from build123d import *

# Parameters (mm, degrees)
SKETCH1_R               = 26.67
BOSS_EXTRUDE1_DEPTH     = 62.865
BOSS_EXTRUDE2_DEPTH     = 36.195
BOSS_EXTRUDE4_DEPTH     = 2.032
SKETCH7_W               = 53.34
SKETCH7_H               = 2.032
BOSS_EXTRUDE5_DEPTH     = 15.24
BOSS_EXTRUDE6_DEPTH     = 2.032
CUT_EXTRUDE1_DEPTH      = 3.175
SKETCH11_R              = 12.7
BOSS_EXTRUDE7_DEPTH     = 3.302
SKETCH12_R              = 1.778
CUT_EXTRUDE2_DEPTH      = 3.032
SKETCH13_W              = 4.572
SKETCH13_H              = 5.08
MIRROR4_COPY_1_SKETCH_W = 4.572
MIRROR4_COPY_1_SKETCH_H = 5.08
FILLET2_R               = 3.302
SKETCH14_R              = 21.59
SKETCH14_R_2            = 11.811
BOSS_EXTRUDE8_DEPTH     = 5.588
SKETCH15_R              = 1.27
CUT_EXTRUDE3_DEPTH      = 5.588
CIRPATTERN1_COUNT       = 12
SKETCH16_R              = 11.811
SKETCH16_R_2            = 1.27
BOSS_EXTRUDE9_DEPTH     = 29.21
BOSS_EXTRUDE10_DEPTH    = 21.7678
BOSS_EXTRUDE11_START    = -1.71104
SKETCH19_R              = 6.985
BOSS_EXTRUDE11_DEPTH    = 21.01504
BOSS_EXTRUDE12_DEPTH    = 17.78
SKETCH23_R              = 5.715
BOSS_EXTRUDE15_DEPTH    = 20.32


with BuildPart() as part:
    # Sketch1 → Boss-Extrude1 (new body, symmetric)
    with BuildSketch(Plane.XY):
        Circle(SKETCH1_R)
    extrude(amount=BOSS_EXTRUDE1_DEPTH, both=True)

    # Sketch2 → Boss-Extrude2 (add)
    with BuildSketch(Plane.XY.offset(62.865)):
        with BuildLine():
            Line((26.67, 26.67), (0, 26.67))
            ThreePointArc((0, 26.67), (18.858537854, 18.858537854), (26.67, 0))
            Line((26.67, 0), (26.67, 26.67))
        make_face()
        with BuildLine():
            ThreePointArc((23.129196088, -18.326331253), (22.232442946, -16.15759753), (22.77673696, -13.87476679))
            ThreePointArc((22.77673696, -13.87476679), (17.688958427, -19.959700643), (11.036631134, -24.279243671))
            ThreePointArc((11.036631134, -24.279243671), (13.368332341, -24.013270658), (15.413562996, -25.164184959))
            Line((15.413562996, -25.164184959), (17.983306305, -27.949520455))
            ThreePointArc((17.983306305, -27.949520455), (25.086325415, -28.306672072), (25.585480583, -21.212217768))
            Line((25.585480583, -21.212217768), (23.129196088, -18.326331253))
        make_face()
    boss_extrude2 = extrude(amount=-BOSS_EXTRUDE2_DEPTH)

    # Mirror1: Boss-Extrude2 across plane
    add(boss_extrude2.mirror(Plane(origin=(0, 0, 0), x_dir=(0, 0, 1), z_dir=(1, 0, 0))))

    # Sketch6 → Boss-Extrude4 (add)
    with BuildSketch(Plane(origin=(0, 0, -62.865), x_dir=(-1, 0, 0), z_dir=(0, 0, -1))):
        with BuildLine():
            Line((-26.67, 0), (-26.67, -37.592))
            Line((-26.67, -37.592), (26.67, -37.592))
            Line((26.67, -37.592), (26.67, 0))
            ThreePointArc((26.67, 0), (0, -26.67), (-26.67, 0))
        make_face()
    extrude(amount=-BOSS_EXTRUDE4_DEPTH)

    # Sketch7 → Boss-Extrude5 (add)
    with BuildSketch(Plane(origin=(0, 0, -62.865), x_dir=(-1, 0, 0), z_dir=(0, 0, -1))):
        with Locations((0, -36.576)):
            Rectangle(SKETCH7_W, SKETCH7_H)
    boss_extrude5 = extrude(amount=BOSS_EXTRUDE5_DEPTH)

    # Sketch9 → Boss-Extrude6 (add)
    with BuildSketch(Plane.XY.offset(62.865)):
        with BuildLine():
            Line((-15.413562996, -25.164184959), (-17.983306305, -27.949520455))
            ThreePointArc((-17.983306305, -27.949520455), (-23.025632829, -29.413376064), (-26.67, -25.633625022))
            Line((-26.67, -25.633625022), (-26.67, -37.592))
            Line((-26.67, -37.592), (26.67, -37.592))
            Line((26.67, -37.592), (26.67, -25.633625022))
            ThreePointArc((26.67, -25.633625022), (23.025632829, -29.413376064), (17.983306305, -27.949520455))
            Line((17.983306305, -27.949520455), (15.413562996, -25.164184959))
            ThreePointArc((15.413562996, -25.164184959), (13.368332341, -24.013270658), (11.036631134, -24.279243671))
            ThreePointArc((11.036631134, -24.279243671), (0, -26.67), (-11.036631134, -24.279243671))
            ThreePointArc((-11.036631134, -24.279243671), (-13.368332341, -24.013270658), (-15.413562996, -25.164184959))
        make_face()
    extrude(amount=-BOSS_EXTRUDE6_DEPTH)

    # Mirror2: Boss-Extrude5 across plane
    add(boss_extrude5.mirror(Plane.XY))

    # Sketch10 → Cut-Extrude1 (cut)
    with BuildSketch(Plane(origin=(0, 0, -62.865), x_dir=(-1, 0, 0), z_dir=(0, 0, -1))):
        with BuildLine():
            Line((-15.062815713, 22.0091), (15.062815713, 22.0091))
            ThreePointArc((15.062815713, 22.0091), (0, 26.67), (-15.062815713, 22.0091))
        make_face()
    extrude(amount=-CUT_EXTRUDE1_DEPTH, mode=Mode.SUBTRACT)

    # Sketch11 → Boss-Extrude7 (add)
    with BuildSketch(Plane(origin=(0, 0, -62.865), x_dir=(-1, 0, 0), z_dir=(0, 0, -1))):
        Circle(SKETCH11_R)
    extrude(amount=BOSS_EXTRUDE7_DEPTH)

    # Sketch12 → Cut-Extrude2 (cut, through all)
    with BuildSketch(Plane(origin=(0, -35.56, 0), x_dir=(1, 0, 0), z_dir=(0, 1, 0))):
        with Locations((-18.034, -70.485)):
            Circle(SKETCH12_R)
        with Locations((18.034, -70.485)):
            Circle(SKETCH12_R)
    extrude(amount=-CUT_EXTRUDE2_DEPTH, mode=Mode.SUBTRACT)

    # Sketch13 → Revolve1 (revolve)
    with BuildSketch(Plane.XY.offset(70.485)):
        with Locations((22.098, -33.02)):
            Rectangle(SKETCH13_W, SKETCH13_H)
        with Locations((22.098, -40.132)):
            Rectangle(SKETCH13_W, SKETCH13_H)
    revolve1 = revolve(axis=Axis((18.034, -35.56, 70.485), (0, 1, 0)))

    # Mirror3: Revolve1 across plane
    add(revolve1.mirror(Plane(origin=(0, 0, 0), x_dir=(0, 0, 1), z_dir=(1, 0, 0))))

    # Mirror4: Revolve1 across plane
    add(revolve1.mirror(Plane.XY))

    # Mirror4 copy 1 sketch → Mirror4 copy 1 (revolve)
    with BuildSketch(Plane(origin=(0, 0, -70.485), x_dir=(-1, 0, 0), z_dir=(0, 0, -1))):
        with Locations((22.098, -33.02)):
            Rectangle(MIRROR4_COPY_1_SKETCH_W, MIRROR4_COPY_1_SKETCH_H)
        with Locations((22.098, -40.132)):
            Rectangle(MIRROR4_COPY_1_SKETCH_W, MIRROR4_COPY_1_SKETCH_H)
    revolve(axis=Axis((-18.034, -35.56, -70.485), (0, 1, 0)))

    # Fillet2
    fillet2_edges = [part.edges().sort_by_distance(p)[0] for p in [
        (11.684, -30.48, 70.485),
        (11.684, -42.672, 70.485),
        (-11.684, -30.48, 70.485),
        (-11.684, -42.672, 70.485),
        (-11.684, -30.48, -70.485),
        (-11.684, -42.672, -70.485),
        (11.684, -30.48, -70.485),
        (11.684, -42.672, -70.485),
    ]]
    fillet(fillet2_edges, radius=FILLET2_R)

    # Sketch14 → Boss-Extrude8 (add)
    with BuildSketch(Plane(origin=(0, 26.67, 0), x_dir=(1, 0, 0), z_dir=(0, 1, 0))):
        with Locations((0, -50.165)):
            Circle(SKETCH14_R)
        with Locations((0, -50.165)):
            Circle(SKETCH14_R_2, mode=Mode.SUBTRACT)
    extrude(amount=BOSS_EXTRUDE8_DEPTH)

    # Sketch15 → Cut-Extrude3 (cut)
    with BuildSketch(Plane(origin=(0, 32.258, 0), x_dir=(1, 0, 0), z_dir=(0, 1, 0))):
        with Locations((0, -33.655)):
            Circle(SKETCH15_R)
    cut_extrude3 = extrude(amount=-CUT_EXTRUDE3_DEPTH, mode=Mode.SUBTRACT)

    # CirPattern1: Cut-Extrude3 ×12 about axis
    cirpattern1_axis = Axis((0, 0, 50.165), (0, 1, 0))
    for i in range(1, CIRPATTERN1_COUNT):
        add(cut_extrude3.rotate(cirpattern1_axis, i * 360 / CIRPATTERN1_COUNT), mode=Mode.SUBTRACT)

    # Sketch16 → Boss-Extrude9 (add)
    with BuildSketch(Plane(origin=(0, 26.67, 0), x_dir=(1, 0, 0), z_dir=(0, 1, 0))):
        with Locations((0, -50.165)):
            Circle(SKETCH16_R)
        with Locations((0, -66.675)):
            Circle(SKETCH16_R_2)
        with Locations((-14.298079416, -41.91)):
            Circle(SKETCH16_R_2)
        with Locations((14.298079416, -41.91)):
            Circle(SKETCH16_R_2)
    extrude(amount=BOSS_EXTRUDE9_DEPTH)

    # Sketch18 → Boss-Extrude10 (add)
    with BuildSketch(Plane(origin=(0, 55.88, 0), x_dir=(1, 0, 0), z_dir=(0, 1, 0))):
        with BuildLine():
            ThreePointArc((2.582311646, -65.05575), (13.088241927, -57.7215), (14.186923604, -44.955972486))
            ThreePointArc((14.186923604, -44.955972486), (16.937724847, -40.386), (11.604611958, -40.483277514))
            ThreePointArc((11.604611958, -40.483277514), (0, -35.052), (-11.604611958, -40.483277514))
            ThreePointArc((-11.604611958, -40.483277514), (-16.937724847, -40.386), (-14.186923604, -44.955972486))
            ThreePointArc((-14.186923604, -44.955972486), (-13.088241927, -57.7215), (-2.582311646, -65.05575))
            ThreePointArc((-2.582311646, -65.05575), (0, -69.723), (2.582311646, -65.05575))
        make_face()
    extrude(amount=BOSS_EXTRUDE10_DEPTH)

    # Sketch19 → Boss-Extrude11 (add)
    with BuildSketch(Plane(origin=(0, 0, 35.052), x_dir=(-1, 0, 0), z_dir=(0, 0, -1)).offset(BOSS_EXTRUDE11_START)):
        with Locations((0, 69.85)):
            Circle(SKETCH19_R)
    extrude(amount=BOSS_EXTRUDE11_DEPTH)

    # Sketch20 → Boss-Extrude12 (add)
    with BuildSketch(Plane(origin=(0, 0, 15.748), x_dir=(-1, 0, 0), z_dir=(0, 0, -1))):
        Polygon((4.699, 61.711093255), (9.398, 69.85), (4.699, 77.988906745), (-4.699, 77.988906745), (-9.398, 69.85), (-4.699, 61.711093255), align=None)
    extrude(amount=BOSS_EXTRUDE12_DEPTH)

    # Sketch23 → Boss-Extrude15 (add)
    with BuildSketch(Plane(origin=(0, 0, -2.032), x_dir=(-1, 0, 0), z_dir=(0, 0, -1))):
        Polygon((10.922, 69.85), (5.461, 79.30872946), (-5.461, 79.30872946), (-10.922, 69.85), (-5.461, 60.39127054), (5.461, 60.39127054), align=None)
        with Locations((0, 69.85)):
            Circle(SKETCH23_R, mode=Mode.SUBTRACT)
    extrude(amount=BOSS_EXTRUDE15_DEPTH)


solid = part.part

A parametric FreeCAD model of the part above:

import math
import FreeCAD as App
import Part
import Sketcher
Q = App.Units.Quantity


def edges_at(feature, points):
    """Names of the edges that pass closest to the given points."""
    edges = feature.Shape.Edges
    near = lambda p: min(range(len(edges)), key=lambda i: edges[i].distToShape(Part.Vertex(*p))[0])
    return sorted({f"Edge{near(p) + 1}" for p in points})


def add_polygon(sketch, points):
    """Adds a closed chain of lines whose ends are joined by coincident constraints."""
    first, n = sketch.GeometryCount, len(points)
    for a, b in zip(points, points[1:] + points[:1]):
        sketch.addGeometry(Part.LineSegment(App.Vector(*a, 0), App.Vector(*b, 0)), False)
    for i in range(n):
        sketch.addConstraint(Sketcher.Constraint("Coincident", first + i, 2, first + (i + 1) % n, 1))

doc = App.newDocument("Part")
params = doc.addObject("Spreadsheet::Sheet", "Params")
for row, (alias, value) in enumerate([
    ("sketch1_diameter", "2.1 in"),
    ("pad1_length", "4.95 in"),
    ("sketch2_radius", "0.2 in"),
    ("sketch2_radius2", "1.05 in"),
    ("sketch2_radius3", "0.15 in"),
    ("pad2_length", "1.425 in"),
    ("sketch3_radius", "1.05 in"),
    ("sketch3_height", "1.48 in"),
    ("pad3_length", "0.08 in"),
    ("sketch4_width", "2.1 in"),
    ("sketch4_height", "0.08 in"),
    ("pad4_length", "0.6 in"),
    ("sketch5_radius", "0.2 in"),
    ("sketch5_radius2", "0.15 in"),
    ("sketch5_radius3", "1.05 in"),
    ("sketch5_width", "2.1 in"),
    ("pad5_length", "0.08 in"),
    ("sketch6_radius", "1.05 in"),
    ("pocket1_length", "0.125 in"),
    ("sketch7_diameter", "1 in"),
    ("pad6_length", "0.13 in"),
    ("sketch8_diameter", "0.14 in"),
    ("sketch9_height", "0.2 in"),
    ("sketch9_width", "0.18 in"),
    ("sketch9_height2", "0.48 in"),
    ("revolution_angle", "360 deg"),
    ("sketch10_height", "0.2 in"),
    ("sketch10_width", "0.18 in"),
    ("sketch10_height2", "0.48 in"),
    ("revolution2_angle", "360 deg"),
    ("fillet_radius", "0.13 in"),
    ("sketch11_diameter", "1.7 in"),
    ("sketch11_diameter2", "0.93 in"),
    ("pad7_length", "0.22 in"),
    ("sketch12_diameter", "0.1 in"),
    ("pocket3_length", "0.22 in"),
    ("sketch13_diameter", "0.1 in"),
    ("sketch13_diameter2", "0.93 in"),
    ("pad8_length", "1.15 in"),
    ("sketch14_radius", "0.12 in"),
    ("sketch14_radius2", "0.595 in"),
    ("pad9_length", "0.857 in"),
    ("sketch15_diameter", "0.55 in"),
    ("pad10_length", "21.01504 mm"),
    ("sketch16_width", "0.37 in"),
    ("sketch16_length", "0.37 in"),
    ("pad11_length", "0.7 in"),
    ("sketch17_diameter", "0.45 in"),
    ("sketch17_width", "0.43 in"),
    ("sketch17_length", "0.43 in"),
    ("pad12_length", "0.8 in"),
], start=1):
    params.set(f"A{row}", alias)
    params.set(f"B{row}", "=" + value)
    params.setAlias(f"B{row}", alias)

body = doc.addObject("PartDesign::Body", "Body")

# Sketch on XY plane
sketch1 = body.newObject("Sketcher::SketchObject", "Sketch")
sketch1.AttachmentSupport = (doc.getObject("XY_Plane"), [""])
sketch1.MapMode = "FlatFace"
sketch1.addGeometry(Part.Circle(App.Vector(0, 0, 0), App.Vector(0, 0, 1), 27), False)
sketch1.addConstraint([
    Sketcher.Constraint("Coincident", 0, 3, -1, 1),
    Sketcher.Constraint("Diameter", 0, Q("2.1 in")),
])
sketch1.setExpression("Constraints[1]", "Params.sketch1_diameter")
pad1 = body.newObject("PartDesign::Pad", "Pad")
pad1.Profile = sketch1
pad1.setExpression("Length", "Params.pad1_length")
pad1.Midplane = True

# Sketch on XY plane
sketch2 = body.newObject("Sketcher::SketchObject", "Sketch001")
sketch2.AttachmentSupport = (doc.getObject("XY_Plane"), [""])
sketch2.MapMode = "FlatFace"
sketch2.AttachmentOffset = App.Placement(App.Vector(0, 0, 2.475 * 25.4), App.Rotation())
sketch2.addGeometry([
    Part.LineSegment(App.Vector(26.7, 26.7, 0), App.Vector(0, 26.7, 0)),  # 0
    Part.ArcOfCircle(Part.Circle(App.Vector(0, 0, 0), App.Vector(0, 0, 1), 26.7), math.radians(0), math.radians(90)),  # 1
    Part.LineSegment(App.Vector(26.7, 0, 0), App.Vector(26.7, 26.7, 0)),  # 2
    Part.ArcOfCircle(Part.Circle(App.Vector(26, -15.9, 0), App.Vector(0, 0, 1), 3.8), math.radians(149), math.radians(220)),  # 3
    Part.ArcOfCircle(Part.Circle(App.Vector(0, 0, 0), App.Vector(0, 0, 1), 26.7), math.radians(-66), math.radians(-31)),  # 4
    Part.ArcOfCircle(Part.Circle(App.Vector(12.6, -27.7, 0), App.Vector(0, 0, 1), 3.8), math.radians(43), math.radians(114)),  # 5
    Part.LineSegment(App.Vector(15.4, -25.2, 0), App.Vector(18, -27.9, 0)),  # 6
    Part.ArcOfCircle(Part.Circle(App.Vector(21.7, -24.5, 0), App.Vector(0, 0, 1), 5.1), math.radians(-137), math.radians(40)),  # 7
    Part.LineSegment(App.Vector(25.6, -21.2, 0), App.Vector(23.1, -18.3, 0)),  # 8
], False)
sketch2.addConstraint([
    Sketcher.Constraint("Tangent", 0, 2, 1, 2),
    Sketcher.Constraint("Tangent", 1, 1, 2, 1),
    Sketcher.Constraint("Coincident", 2, 2, 0, 1),
    Sketcher.Constraint("Tangent", 3, 1, 4, 2),
    Sketcher.Constraint("Tangent", 4, 1, 5, 2),
    Sketcher.Constraint("Tangent", 5, 1, 6, 1),
    Sketcher.Constraint("Tangent", 6, 2, 7, 1),
    Sketcher.Constraint("Tangent", 7, 2, 8, 1),
    Sketcher.Constraint("Tangent", 8, 2, 3, 2),
    Sketcher.Constraint("Horizontal", 0),
    Sketcher.Constraint("Vertical", 2),
    Sketcher.Constraint("Coincident", 1, 3, -1, 1),
    Sketcher.Constraint("Coincident", 4, 3, -1, 1),
    Sketcher.Constraint("Equal", 1, 4),
    Sketcher.Constraint("Equal", 3, 5),
    Sketcher.Constraint("Equal", 6, 8),
    Sketcher.Constraint("Radius", 7, Q("0.2 in")),
    Sketcher.Constraint("Radius", 1, Q("1.05 in")),
    Sketcher.Constraint("Radius", 3, Q("0.15 in")),
    Sketcher.Constraint("DistanceX", -1, 1, 7, 3, Q("0.855 in")),
    Sketcher.Constraint("Distance", 6, Q("0.1492 in")),
    Sketcher.Constraint("DistanceX", -1, 1, 4, 1, Q("11.036631 mm")),
])
sketch2.setExpression("Constraints[16]", "Params.sketch2_radius")
sketch2.setExpression("Constraints[17]", "Params.sketch2_radius2")
sketch2.setExpression("Constraints[18]", "Params.sketch2_radius3")
pad2 = body.newObject("PartDesign::Pad", "Pad001")
pad2.Profile = sketch2
pad2.setExpression("Length", "Params.pad2_length")
pad2.Reversed = True
doc.recompute()

mirrored = body.newObject("PartDesign::Mirrored", "Mirrored")
mirrored.Originals = [pad2]
mirrored.MirrorPlane = (doc.getObject("YZ_Plane"), [""])
body.Tip = mirrored

# Sketch on XY plane
sketch3 = body.newObject("Sketcher::SketchObject", "Sketch002")
sketch3.AttachmentSupport = (doc.getObject("XY_Plane"), [""])
sketch3.MapMode = "FlatFace"
sketch3.AttachmentOffset = App.Placement(App.Vector(0, 0, -2.475 * 25.4), App.Rotation())
sketch3.addGeometry([
    Part.LineSegment(App.Vector(27, 0, 0), App.Vector(27, -38, 0)),
    Part.LineSegment(App.Vector(27, -38, 0), App.Vector(-27, -38, 0)),
    Part.LineSegment(App.Vector(-27, -38, 0), App.Vector(-27, 0, 0)),
    Part.ArcOfCircle(Part.Circle(App.Vector(0, 0, 0), App.Vector(0, 0, 1), 27), math.radians(180), math.radians(360)),
], False)
sketch3.addConstraint([
    Sketcher.Constraint("Coincident", 0, 2, 1, 1),
    Sketcher.Constraint("Coincident", 1, 2, 2, 1),
    Sketcher.Constraint("Tangent", 2, 2, 3, 1),
    Sketcher.Constraint("Tangent", 3, 2, 0, 1),
    Sketcher.Constraint("Vertical", 0),
    Sketcher.Constraint("Horizontal", 1),
    Sketcher.Constraint("Vertical", 2),
    Sketcher.Constraint("Coincident", 3, 3, -1, 1),
    Sketcher.Constraint("Radius", 3, Q("1.05 in")),
    Sketcher.Constraint("DistanceY", 0, 2, 0, 1, Q("1.48 in")),
])
sketch3.setExpression("Constraints[8]", "Params.sketch3_radius")
sketch3.setExpression("Constraints[9]", "Params.sketch3_height")
pad3 = body.newObject("PartDesign::Pad", "Pad002")
pad3.Profile = sketch3
pad3.setExpression("Length", "Params.pad3_length")

# Sketch on XY plane
sketch4 = body.newObject("Sketcher::SketchObject", "Sketch003")
sketch4.AttachmentSupport = (doc.getObject("XY_Plane"), [""])
sketch4.MapMode = "FlatFace"
sketch4.AttachmentOffset = App.Placement(App.Vector(0, 0, -2.475 * 25.4), App.Rotation())
add_polygon(sketch4, [(26.7, -35.6), (26.7, -37.6), (-26.7, -37.6), (-26.7, -35.6)])  # lines 0-3
sketch4.addConstraint([
    Sketcher.Constraint("Vertical", 0),
    Sketcher.Constraint("Horizontal", 1),
    Sketcher.Constraint("Vertical", 2),
    Sketcher.Constraint("Horizontal", 3),
    Sketcher.Constraint("DistanceX", 1, 2, 1, 1, Q("2.1 in")),
    Sketcher.Constraint("DistanceY", 0, 2, 0, 1, Q("0.08 in")),
    Sketcher.Constraint("DistanceY", 2, 2, -1, 1, Q("1.4 in")),
    Sketcher.Constraint("DistanceX", -1, 1, 0, 2, Q("1.05 in")),
])
sketch4.setExpression("Constraints[8]", "Params.sketch4_width")
sketch4.setExpression("Constraints[9]", "Params.sketch4_height")
pad4 = body.newObject("PartDesign::Pad", "Pad003")
pad4.Profile = sketch4
pad4.setExpression("Length", "Params.pad4_length")
pad4.Reversed = True

# Sketch on XY plane
sketch5 = body.newObject("Sketcher::SketchObject", "Sketch004")
sketch5.AttachmentSupport = (doc.getObject("XY_Plane"), [""])
sketch5.MapMode = "FlatFace"
sketch5.AttachmentOffset = App.Placement(App.Vector(0, 0, 2.475 * 25.4), App.Rotation())
sketch5.addGeometry([
    Part.LineSegment(App.Vector(-15.4, -25.2, 0), App.Vector(-18, -27.9, 0)),  # 0
    Part.ArcOfCircle(Part.Circle(App.Vector(-21.7, -24.5, 0), App.Vector(0, 0, 1), 5.1), math.radians(-167), math.radians(-43)),  # 1
    Part.LineSegment(App.Vector(-26.7, -25.6, 0), App.Vector(-26.7, -37.6, 0)),  # 2
    Part.LineSegment(App.Vector(-26.7, -37.6, 0), App.Vector(26.7, -37.6, 0)),  # 3
    Part.LineSegment(App.Vector(26.7, -37.6, 0), App.Vector(26.7, -25.6, 0)),  # 4
    Part.ArcOfCircle(Part.Circle(App.Vector(21.7, -24.5, 0), App.Vector(0, 0, 1), 5.1), math.radians(-137), math.radians(-13)),  # 5
    Part.LineSegment(App.Vector(18, -27.9, 0), App.Vector(15.4, -25.2, 0)),  # 6
    Part.ArcOfCircle(Part.Circle(App.Vector(12.6, -27.7, 0), App.Vector(0, 0, 1), 3.8), math.radians(43), math.radians(114)),  # 7
    Part.ArcOfCircle(Part.Circle(App.Vector(0, 0, 0), App.Vector(0, 0, 1), 26.7), math.radians(-114), math.radians(-66)),  # 8
    Part.ArcOfCircle(Part.Circle(App.Vector(-12.6, -27.7, 0), App.Vector(0, 0, 1), 3.8), math.radians(66), math.radians(137)),  # 9
], False)
sketch5.addConstraint([
    Sketcher.Constraint("Tangent", 0, 2, 1, 2),
    Sketcher.Constraint("Coincident", 1, 1, 2, 1),
    Sketcher.Constraint("Coincident", 2, 2, 3, 1),
    Sketcher.Constraint("Coincident", 3, 2, 4, 1),
    Sketcher.Constraint("Coincident", 4, 2, 5, 2),
    Sketcher.Constraint("Tangent", 5, 1, 6, 1),
    Sketcher.Constraint("Tangent", 6, 2, 7, 1),
    Sketcher.Constraint("Tangent", 7, 2, 8, 2),
    Sketcher.Constraint("Tangent", 8, 1, 9, 1),
    Sketcher.Constraint("Tangent", 9, 2, 0, 1),
    Sketcher.Constraint("Vertical", 2),
    Sketcher.Constraint("Horizontal", 3),
    Sketcher.Constraint("Vertical", 4),
    Sketcher.Constraint("Coincident", 8, 3, -1, 1),
    Sketcher.Constraint("Equal", 1, 5),
    Sketcher.Constraint("Equal", 7, 9),
    Sketcher.Constraint("Symmetric", 1, 3, 5, 3, -2),
    Sketcher.Constraint("Horizontal", 7, 3, 9, 3),
    Sketcher.Constraint("Horizontal", 1, 1, 4, 2),
    Sketcher.Constraint("Radius", 1, Q("0.2 in")),
    Sketcher.Constraint("Radius", 7, Q("0.15 in")),
    Sketcher.Constraint("Radius", 8, Q("1.05 in")),
    Sketcher.Constraint("DistanceX", 3, 1, 3, 2, Q("2.1 in")),
    Sketcher.Constraint("DistanceY", 2, 2, -1, 1, Q("1.48 in")),
    Sketcher.Constraint("DistanceX", 1, 3, 5, 3, Q("1.71 in")),
    Sketcher.Constraint("Distance", 0, Q("0.1492 in")),
    Sketcher.Constraint("DistanceX", 0, 2, 7, 3, Q("30.596599 mm")),
])
sketch5.setExpression("Constraints[19]", "Params.sketch5_radius")
sketch5.setExpression("Constraints[20]", "Params.sketch5_radius2")
sketch5.setExpression("Constraints[21]", "Params.sketch5_radius3")
sketch5.setExpression("Constraints[22]", "Params.sketch5_width")
pad5 = body.newObject("PartDesign::Pad", "Pad004")
pad5.Profile = sketch5
pad5.setExpression("Length", "Params.pad5_length")
pad5.Reversed = True
doc.recompute()

mirrored2 = body.newObject("PartDesign::Mirrored", "Mirrored001")
mirrored2.Originals = [pad4]
mirrored2.MirrorPlane = (doc.getObject("XY_Plane"), [""])
body.Tip = mirrored2

# Sketch on XY plane
sketch6 = body.newObject("Sketcher::SketchObject", "Sketch005")
sketch6.AttachmentSupport = (doc.getObject("XY_Plane"), [""])
sketch6.MapMode = "FlatFace"
sketch6.AttachmentOffset = App.Placement(App.Vector(0, 0, -2.475 * 25.4), App.Rotation())
sketch6.addGeometry([
    Part.LineSegment(App.Vector(15, 22, 0), App.Vector(-15, 22, 0)),
    Part.ArcOfCircle(Part.Circle(App.Vector(0, 0, 0), App.Vector(0, 0, 1), 27), math.radians(56), math.radians(124)),
], False)
sketch6.addConstraint([
    Sketcher.Constraint("Coincident", 0, 1, 1, 1),
    Sketcher.Constraint("Coincident", 1, 2, 0, 2),
    Sketcher.Constraint("Horizontal", 0),
    Sketcher.Constraint("Coincident", 1, 3, -1, 1),
    Sketcher.Constraint("Radius", 1, Q("1.05 in")),
    Sketcher.Constraint("DistanceY", -1, 1, 0, 1, Q("0.8665 in")),
])
sketch6.setExpression("Constraints[4]", "Params.sketch6_radius")
pocket1 = body.newObject("PartDesign::Pocket", "Pocket")
pocket1.Profile = sketch6
pocket1.setExpression("Length", "Params.pocket1_length")
pocket1.Reversed = True

# Sketch on XY plane
sketch7 = body.newObject("Sketcher::SketchObject", "Sketch006")
sketch7.AttachmentSupport = (doc.getObject("XY_Plane"), [""])
sketch7.MapMode = "FlatFace"
sketch7.AttachmentOffset = App.Placement(App.Vector(0, 0, -2.475 * 25.4), App.Rotation())
sketch7.addGeometry(Part.Circle(App.Vector(0, 0, 0), App.Vector(0, 0, 1), 13), False)
sketch7.addConstraint([
    Sketcher.Constraint("Coincident", 0, 3, -1, 1),
    Sketcher.Constraint("Diameter", 0, Q("1 in")),
])
sketch7.setExpression("Constraints[1]", "Params.sketch7_diameter")
pad6 = body.newObject("PartDesign::Pad", "Pad005")
pad6.Profile = sketch7
pad6.setExpression("Length", "Params.pad6_length")
pad6.Reversed = True

# Sketch on XZ plane
sketch8 = body.newObject("Sketcher::SketchObject", "Sketch007")
sketch8.AttachmentSupport = (doc.getObject("XZ_Plane"), [""])
sketch8.MapMode = "FlatFace"
sketch8.AttachmentOffset = App.Placement(App.Vector(0, 0, 1.4 * 25.4), App.Rotation())
sketch8.addGeometry([
    Part.Circle(App.Vector(-18, 70.5, 0), App.Vector(0, 0, 1), 1.8),
    Part.Circle(App.Vector(18, 70.5, 0), App.Vector(0, 0, 1), 1.8),
], False)
sketch8.addConstraint([
    Sketcher.Constraint("Equal", 0, 1),
    Sketcher.Constraint("Symmetric", 0, 3, 1, 3, -2),
    Sketcher.Constraint("Diameter", 0, Q("0.14 in")),
    Sketcher.Constraint("DistanceX", 0, 3, -1, 1, Q("0.71 in")),
    Sketcher.Constraint("DistanceY", -1, 1, 0, 3, Q("2.775 in")),
])
sketch8.setExpression("Constraints[2]", "Params.sketch8_diameter")
pocket2 = body.newObject("PartDesign::Pocket", "Pocket001")
pocket2.Profile = sketch8
pocket2.Type = "ThroughAll"
pocket2.Reversed = True

# Sketch on XY plane
sketch9 = body.newObject("Sketcher::SketchObject", "Sketch008")
sketch9.AttachmentSupport = (doc.getObject("XY_Plane"), [""])
sketch9.MapMode = "FlatFace"
sketch9.AttachmentOffset = App.Placement(App.Vector(0, 0, 2.775 * 25.4), App.Rotation())
add_polygon(sketch9, [(19.8, -30.5), (19.8, -35.6), (24.4, -35.6), (24.4, -30.5)])  # lines 0-3
add_polygon(sketch9, [(19.8, -37.6), (19.8, -42.7), (24.4, -42.7), (24.4, -37.6)])  # lines 4-7
sketch9.addGeometry(Part.LineSegment(App.Vector(18, -42.7, 0), App.Vector(18, -30.5, 0)), True)  # axis
sketch9.addConstraint([
    Sketcher.Constraint("Vertical", 0),
    Sketcher.Constraint("Horizontal", 1),
    Sketcher.Constraint("Vertical", 2),
    Sketcher.Constraint("Horizontal", 3),
    Sketcher.Constraint("Vertical", 4),
    Sketcher.Constraint("Horizontal", 5),
    Sketcher.Constraint("Vertical", 6),
    Sketcher.Constraint("Horizontal", 7),
    Sketcher.Constraint("Vertical", 8),
    Sketcher.Constraint("Horizontal", 5, 2, 8, 1),
    Sketcher.Constraint("Horizontal", 3, 2, 8, 2),
    Sketcher.Constraint("Vertical", 3, 2, 4, 2),
    Sketcher.Constraint("Vertical", 2, 2, 5, 2),
    Sketcher.Constraint("Equal", 2, 4),
    Sketcher.Constraint("DistanceY", 0, 2, 0, 1, Q("0.2 in")),
    Sketcher.Constraint("DistanceX", 1, 1, 1, 2, Q("0.18 in")),
    Sketcher.Constraint("DistanceY", 8, 1, 8, 2, Q("0.48 in")),
    Sketcher.Constraint("DistanceY", 0, 2, -1, 1, Q("1.4 in")),
    Sketcher.Constraint("DistanceX", -1, 1, 0, 2, Q("0.78 in")),
    Sketcher.Constraint("DistanceX", -1, 1, 8, 1, Q("0.71 in")),
])
sketch9.setExpression("Constraints[22]", "Params.sketch9_height")
sketch9.setExpression("Constraints[23]", "Params.sketch9_width")
sketch9.setExpression("Constraints[24]", "Params.sketch9_height2")
revolution = body.newObject("PartDesign::Revolution", "Revolution")
revolution.Profile = sketch9
revolution.ReferenceAxis = (sketch9, ["Axis0"])
revolution.setExpression("Angle", "Params.revolution_angle")
doc.recompute()

mirrored3 = body.newObject("PartDesign::Mirrored", "Mirrored002")
mirrored3.Originals = [revolution]
mirrored3.MirrorPlane = (doc.getObject("YZ_Plane"), [""])
body.Tip = mirrored3
doc.recompute()

mirrored4 = body.newObject("PartDesign::Mirrored", "Mirrored003")
mirrored4.Originals = [revolution]
mirrored4.MirrorPlane = (doc.getObject("XY_Plane"), [""])
body.Tip = mirrored4

# Sketch on XY plane
sketch10 = body.newObject("Sketcher::SketchObject", "Sketch009")
sketch10.AttachmentSupport = (doc.getObject("XY_Plane"), [""])
sketch10.MapMode = "FlatFace"
sketch10.AttachmentOffset = App.Placement(App.Vector(0, 0, -2.775 * 25.4), App.Rotation())
add_polygon(sketch10, [(-19.8, -30.5), (-19.8, -35.6), (-24.4, -35.6), (-24.4, -30.5)])  # lines 0-3
add_polygon(sketch10, [(-19.8, -37.6), (-19.8, -42.7), (-24.4, -42.7), (-24.4, -37.6)])  # lines 4-7
sketch10.addGeometry(Part.LineSegment(App.Vector(-18, -42.7, 0), App.Vector(-18, -30.5, 0)), True)  # axis
sketch10.addConstraint([
    Sketcher.Constraint("Vertical", 0),
    Sketcher.Constraint("Horizontal", 1),
    Sketcher.Constraint("Vertical", 2),
    Sketcher.Constraint("Horizontal", 3),
    Sketcher.Constraint("Vertical", 4),
    Sketcher.Constraint("Horizontal", 5),
    Sketcher.Constraint("Vertical", 6),
    Sketcher.Constraint("Horizontal", 7),
    Sketcher.Constraint("Vertical", 8),
    Sketcher.Constraint("Horizontal", 5, 2, 8, 1),
    Sketcher.Constraint("Horizontal", 3, 2, 8, 2),
    Sketcher.Constraint("Vertical", 3, 2, 4, 2),
    Sketcher.Constraint("Vertical", 2, 2, 5, 2),
    Sketcher.Constraint("Equal", 2, 4),
    Sketcher.Constraint("DistanceY", 0, 2, 0, 1, Q("0.2 in")),
    Sketcher.Constraint("DistanceX", 1, 2, 1, 1, Q("0.18 in")),
    Sketcher.Constraint("DistanceY", 8, 1, 8, 2, Q("0.48 in")),
    Sketcher.Constraint("DistanceY", 0, 2, -1, 1, Q("1.4 in")),
    Sketcher.Constraint("DistanceX", 0, 2, -1, 1, Q("0.78 in")),
    Sketcher.Constraint("DistanceX", 8, 1, -1, 1, Q("0.71 in")),
])
sketch10.setExpression("Constraints[22]", "Params.sketch10_height")
sketch10.setExpression("Constraints[23]", "Params.sketch10_width")
sketch10.setExpression("Constraints[24]", "Params.sketch10_height2")
revolution2 = body.newObject("PartDesign::Revolution", "Revolution001")
revolution2.Profile = sketch10
revolution2.ReferenceAxis = (sketch10, ["Axis0"])
revolution2.setExpression("Angle", "Params.revolution2_angle")
doc.recompute()

fillet = body.newObject("PartDesign::Fillet", "Fillet")
fillet.Base = (revolution2, edges_at(revolution2, [
    (11.684, -30.48, 70.485),
    (11.684, -42.672, 70.485),
    (-11.684, -30.48, 70.485),
    (-11.684, -42.672, 70.485),
    (-11.684, -30.48, -70.485),
    (-11.684, -42.672, -70.485),
    (11.684, -30.48, -70.485),
    (11.684, -42.672, -70.485),
]))
fillet.setExpression("Radius", "Params.fillet_radius")

# Sketch on XZ plane
sketch11 = body.newObject("Sketcher::SketchObject", "Sketch010")
sketch11.AttachmentSupport = (doc.getObject("XZ_Plane"), [""])
sketch11.MapMode = "FlatFace"
sketch11.AttachmentOffset = App.Placement(App.Vector(0, 0, -1.05 * 25.4), App.Rotation())
sketch11.addGeometry([
    Part.Circle(App.Vector(0, 50, 0), App.Vector(0, 0, 1), 22),
    Part.Circle(App.Vector(0, 50, 0), App.Vector(0, 0, 1), 12),
], False)
sketch11.addConstraint([
    Sketcher.Constraint("Coincident", 1, 3, 0, 3),
    Sketcher.Constraint("PointOnObject", 0, 3, -2),
    Sketcher.Constraint("Diameter", 0, Q("1.7 in")),
    Sketcher.Constraint("Diameter", 1, Q("0.93 in")),
    Sketcher.Constraint("DistanceY", -1, 1, 0, 3, Q("1.975 in")),
])
sketch11.setExpression("Constraints[2]", "Params.sketch11_diameter")
sketch11.setExpression("Constraints[3]", "Params.sketch11_diameter2")
pad7 = body.newObject("PartDesign::Pad", "Pad006")
pad7.Profile = sketch11
pad7.setExpression("Length", "Params.pad7_length")
pad7.Reversed = True

# Sketch on XZ plane
sketch12 = body.newObject("Sketcher::SketchObject", "Sketch011")
sketch12.AttachmentSupport = (doc.getObject("XZ_Plane"), [""])
sketch12.MapMode = "FlatFace"
sketch12.AttachmentOffset = App.Placement(App.Vector(0, 0, -1.27 * 25.4), App.Rotation())
sketch12.addGeometry(Part.Circle(App.Vector(0, 33.7, 0), App.Vector(0, 0, 1), 1.3), False)
sketch12.addConstraint([
    Sketcher.Constraint("PointOnObject", 0, 3, -2),
    Sketcher.Constraint("Diameter", 0, Q("0.1 in")),
    Sketcher.Constraint("DistanceY", -1, 1, 0, 3, Q("1.325 in")),
])
sketch12.setExpression("Constraints[1]", "Params.sketch12_diameter")
pocket3 = body.newObject("PartDesign::Pocket", "Pocket002")
pocket3.Profile = sketch12
pocket3.setExpression("Length", "Params.pocket3_length")
pocket3.Reversed = True
doc.recompute()

datumline = body.newObject("PartDesign::Line", "DatumLine")
datumline.Placement = App.Placement(App.Vector(0, 0, 50.165), App.Rotation(App.Vector(0, 0, 1), App.Vector(0, 1, 0)))
polarpattern = body.newObject("PartDesign::PolarPattern", "PolarPattern")
polarpattern.Originals = [pocket3]
polarpattern.Axis = (datumline, [""])
polarpattern.Angle = 360
polarpattern.Occurrences = 12
body.Tip = polarpattern

# Sketch on XZ plane
sketch13 = body.newObject("Sketcher::SketchObject", "Sketch012")
sketch13.AttachmentSupport = (doc.getObject("XZ_Plane"), [""])
sketch13.MapMode = "FlatFace"
sketch13.AttachmentOffset = App.Placement(App.Vector(0, 0, -1.05 * 25.4), App.Rotation())
sketch13.addGeometry([
    Part.Circle(App.Vector(0, 50.2, 0), App.Vector(0, 0, 1), 11.8),
    Part.Circle(App.Vector(0, 66.7, 0), App.Vector(0, 0, 1), 1.3),
    Part.Circle(App.Vector(-14.3, 41.9, 0), App.Vector(0, 0, 1), 1.3),
    Part.Circle(App.Vector(14.3, 41.9, 0), App.Vector(0, 0, 1), 1.3),
], False)
sketch13.addConstraint([
    Sketcher.Constraint("Equal", 1, 2),
    Sketcher.Constraint("Equal", 2, 3),
    Sketcher.Constraint("Symmetric", 2, 3, 3, 3, -2),
    Sketcher.Constraint("PointOnObject", 0, 3, -2),
    Sketcher.Constraint("PointOnObject", 1, 3, -2),
    Sketcher.Constraint("Diameter", 1, Q("0.1 in")),
    Sketcher.Constraint("Diameter", 0, Q("0.93 in")),
    Sketcher.Constraint("DistanceY", -1, 1, 2, 3, Q("1.65 in")),
    Sketcher.Constraint("DistanceY", 0, 3, 1, 3, Q("0.65 in")),
    Sketcher.Constraint("DistanceY", -1, 1, 0, 3, Q("1.975 in")),
    Sketcher.Constraint("DistanceX", 2, 3, -1, 1, Q("14.298079 mm")),
])
sketch13.setExpression("Constraints[5]", "Params.sketch13_diameter")
sketch13.setExpression("Constraints[6]", "Params.sketch13_diameter2")
pad8 = body.newObject("PartDesign::Pad", "Pad007")
pad8.Profile = sketch13
pad8.setExpression("Length", "Params.pad8_length")
pad8.Reversed = True

# Sketch on XZ plane
sketch14 = body.newObject("Sketcher::SketchObject", "Sketch013")
sketch14.AttachmentSupport = (doc.getObject("XZ_Plane"), [""])
sketch14.MapMode = "FlatFace"
sketch14.AttachmentOffset = App.Placement(App.Vector(0, 0, -2.2 * 25.4), App.Rotation())
sketch14.addGeometry([
    Part.ArcOfCircle(Part.Circle(App.Vector(0, 50.2, 0), App.Vector(0, 0, 1), 15.1), math.radians(-20), math.radians(80)),  # 0
    Part.ArcOfCircle(Part.Circle(App.Vector(14.3, 41.9, 0), App.Vector(0, 0, 1), 3), math.radians(-152), math.radians(92)),  # 1
    Part.ArcOfCircle(Part.Circle(App.Vector(0, 50.2, 0), App.Vector(0, 0, 1), 15.1), math.radians(-140), math.radians(-40)),  # 2
    Part.ArcOfCircle(Part.Circle(App.Vector(-14.3, 41.9, 0), App.Vector(0, 0, 1), 3), math.radians(88), math.radians(332)),  # 3
    Part.ArcOfCircle(Part.Circle(App.Vector(0, 50.2, 0), App.Vector(0, 0, 1), 15.1), math.radians(100), math.radians(200)),  # 4
    Part.ArcOfCircle(Part.Circle(App.Vector(0, 66.7, 0), App.Vector(0, 0, 1), 3), math.radians(-32), math.radians(212)),  # 5
], False)
sketch14.addConstraint([
    Sketcher.Constraint("Coincident", 0, 1, 1, 2),
    Sketcher.Constraint("Coincident", 1, 1, 2, 2),
    Sketcher.Constraint("Coincident", 2, 1, 3, 2),
    Sketcher.Constraint("Coincident", 3, 1, 4, 2),
    Sketcher.Constraint("Coincident", 4, 1, 5, 2),
    Sketcher.Constraint("Coincident", 5, 1, 0, 2),
    Sketcher.Constraint("Coincident", 2, 3, 0, 3),
    Sketcher.Constraint("Coincident", 4, 3, 0, 3),
    Sketcher.Constraint("Equal", 0, 2),
    Sketcher.Constraint("Equal", 1, 3),
    Sketcher.Constraint("Equal", 2, 4),
    Sketcher.Constraint("Equal", 3, 5),
    Sketcher.Constraint("Symmetric", 1, 3, 3, 3, -2),
    Sketcher.Constraint("Symmetric", 4, 1, 5, 1, -2),
    Sketcher.Constraint("Radius", 1, Q("0.12 in")),
    Sketcher.Constraint("Radius", 0, Q("0.595 in")),
    Sketcher.Constraint("DistanceY", -1, 1, 1, 3, Q("1.65 in")),
    Sketcher.Constraint("DistanceY", 0, 3, 5, 3, Q("0.65 in")),
    Sketcher.Constraint("DistanceY", -1, 1, 0, 3, Q("1.975 in")),
    Sketcher.Constraint("DistanceX", -1, 1, 1, 3, Q("14.298079 mm")),
])
sketch14.setExpression("Constraints[14]", "Params.sketch14_radius")
sketch14.setExpression("Constraints[15]", "Params.sketch14_radius2")
pad9 = body.newObject("PartDesign::Pad", "Pad008")
pad9.Profile = sketch14
pad9.setExpression("Length", "Params.pad9_length")
pad9.Reversed = True

# Sketch on XY plane
sketch15 = body.newObject("Sketcher::SketchObject", "Sketch014")
sketch15.AttachmentSupport = (doc.getObject("XY_Plane"), [""])
sketch15.MapMode = "FlatFace"
sketch15.AttachmentOffset = App.Placement(App.Vector(0, 0, 36.76304), App.Rotation())
sketch15.addGeometry(Part.Circle(App.Vector(0, 70, 0), App.Vector(0, 0, 1), 7), False)
sketch15.addConstraint([
    Sketcher.Constraint("PointOnObject", 0, 3, -2),
    Sketcher.Constraint("Diameter", 0, Q("0.55 in")),
    Sketcher.Constraint("DistanceY", -1, 1, 0, 3, Q("2.75 in")),
])
sketch15.setExpression("Constraints[1]", "Params.sketch15_diameter")
pad10 = body.newObject("PartDesign::Pad", "Pad009")
pad10.Profile = sketch15
pad10.setExpression("Length", "Params.pad10_length")
pad10.Reversed = True

# Sketch on XY plane
sketch16 = body.newObject("Sketcher::SketchObject", "Sketch015")
sketch16.AttachmentSupport = (doc.getObject("XY_Plane"), [""])
sketch16.MapMode = "FlatFace"
sketch16.AttachmentOffset = App.Placement(App.Vector(0, 0, 0.62 * 25.4), App.Rotation())
add_polygon(sketch16, [(-5, 62), (-9, 70), (-5, 78), (5, 78), (9, 70), (5, 62)])  # lines 0-5
sketch16.addConstraint([
    Sketcher.Constraint("Horizontal", 2),
    Sketcher.Constraint("Horizontal", 5),
    Sketcher.Constraint("Symmetric", 0, 2, 3, 2, -2),
    Sketcher.Constraint("Parallel", 0, 3),
    Sketcher.Constraint("Parallel", 1, 4),
    Sketcher.Constraint("Vertical", 2, 2, 4, 2),
    Sketcher.Constraint("Vertical", 1, 2, 5, 2),
    Sketcher.Constraint("Angle", 0, Q("120 deg")),
    Sketcher.Constraint("DistanceX", 2, 1, 2, 2, Q("0.37 in")),
    Sketcher.Constraint("Distance", 0, Q("0.37 in")),
    Sketcher.Constraint("DistanceY", -1, 1, 0, 2, Q("2.75 in")),
])
sketch16.setExpression("Constraints[14]", "Params.sketch16_width")
sketch16.setExpression("Constraints[15]", "Params.sketch16_length")
pad11 = body.newObject("PartDesign::Pad", "Pad010")
pad11.Profile = sketch16
pad11.setExpression("Length", "Params.pad11_length")
pad11.Reversed = True

# Sketch on XY plane
sketch17 = body.newObject("Sketcher::SketchObject", "Sketch016")
sketch17.AttachmentSupport = (doc.getObject("XY_Plane"), [""])
sketch17.MapMode = "FlatFace"
sketch17.AttachmentOffset = App.Placement(App.Vector(0, 0, -0.08 * 25.4), App.Rotation())
add_polygon(sketch17, [(-11, 70), (-5, 79), (5, 79), (11, 70), (5, 60), (-5, 60)])  # lines 0-5
sketch17.addGeometry(Part.Circle(App.Vector(0, 70, 0), App.Vector(0, 0, 1), 6), False)  # 6
sketch17.addConstraint([
    Sketcher.Constraint("Horizontal", 1),
    Sketcher.Constraint("Horizontal", 4),
    Sketcher.Constraint("Symmetric", 2, 2, 5, 2, -2),
    Sketcher.Constraint("PointOnObject", 6, 3, -2),
    Sketcher.Constraint("Parallel", 0, 3),
    Sketcher.Constraint("Parallel", 2, 5),
    Sketcher.Constraint("Horizontal", 6, 3, 2, 2),
    Sketcher.Constraint("Vertical", 1, 2, 3, 2),
    Sketcher.Constraint("Vertical", 0, 2, 4, 2),
    Sketcher.Constraint("Diameter", 6, Q("0.45 in")),
    Sketcher.Constraint("Angle", 0, Q("60 deg")),
    Sketcher.Constraint("DistanceX", 1, 1, 1, 2, Q("0.43 in")),
    Sketcher.Constraint("Distance", 0, Q("0.43 in")),
    Sketcher.Constraint("DistanceY", -1, 1, 6, 3, Q("2.75 in")),
])
sketch17.setExpression("Constraints[15]", "Params.sketch17_diameter")
sketch17.setExpression("Constraints[17]", "Params.sketch17_width")
sketch17.setExpression("Constraints[18]", "Params.sketch17_length")
pad12 = body.newObject("PartDesign::Pad", "Pad011")
pad12.Profile = sketch17
pad12.setExpression("Length", "Params.pad12_length")
pad12.Reversed = True

doc.recompute()
